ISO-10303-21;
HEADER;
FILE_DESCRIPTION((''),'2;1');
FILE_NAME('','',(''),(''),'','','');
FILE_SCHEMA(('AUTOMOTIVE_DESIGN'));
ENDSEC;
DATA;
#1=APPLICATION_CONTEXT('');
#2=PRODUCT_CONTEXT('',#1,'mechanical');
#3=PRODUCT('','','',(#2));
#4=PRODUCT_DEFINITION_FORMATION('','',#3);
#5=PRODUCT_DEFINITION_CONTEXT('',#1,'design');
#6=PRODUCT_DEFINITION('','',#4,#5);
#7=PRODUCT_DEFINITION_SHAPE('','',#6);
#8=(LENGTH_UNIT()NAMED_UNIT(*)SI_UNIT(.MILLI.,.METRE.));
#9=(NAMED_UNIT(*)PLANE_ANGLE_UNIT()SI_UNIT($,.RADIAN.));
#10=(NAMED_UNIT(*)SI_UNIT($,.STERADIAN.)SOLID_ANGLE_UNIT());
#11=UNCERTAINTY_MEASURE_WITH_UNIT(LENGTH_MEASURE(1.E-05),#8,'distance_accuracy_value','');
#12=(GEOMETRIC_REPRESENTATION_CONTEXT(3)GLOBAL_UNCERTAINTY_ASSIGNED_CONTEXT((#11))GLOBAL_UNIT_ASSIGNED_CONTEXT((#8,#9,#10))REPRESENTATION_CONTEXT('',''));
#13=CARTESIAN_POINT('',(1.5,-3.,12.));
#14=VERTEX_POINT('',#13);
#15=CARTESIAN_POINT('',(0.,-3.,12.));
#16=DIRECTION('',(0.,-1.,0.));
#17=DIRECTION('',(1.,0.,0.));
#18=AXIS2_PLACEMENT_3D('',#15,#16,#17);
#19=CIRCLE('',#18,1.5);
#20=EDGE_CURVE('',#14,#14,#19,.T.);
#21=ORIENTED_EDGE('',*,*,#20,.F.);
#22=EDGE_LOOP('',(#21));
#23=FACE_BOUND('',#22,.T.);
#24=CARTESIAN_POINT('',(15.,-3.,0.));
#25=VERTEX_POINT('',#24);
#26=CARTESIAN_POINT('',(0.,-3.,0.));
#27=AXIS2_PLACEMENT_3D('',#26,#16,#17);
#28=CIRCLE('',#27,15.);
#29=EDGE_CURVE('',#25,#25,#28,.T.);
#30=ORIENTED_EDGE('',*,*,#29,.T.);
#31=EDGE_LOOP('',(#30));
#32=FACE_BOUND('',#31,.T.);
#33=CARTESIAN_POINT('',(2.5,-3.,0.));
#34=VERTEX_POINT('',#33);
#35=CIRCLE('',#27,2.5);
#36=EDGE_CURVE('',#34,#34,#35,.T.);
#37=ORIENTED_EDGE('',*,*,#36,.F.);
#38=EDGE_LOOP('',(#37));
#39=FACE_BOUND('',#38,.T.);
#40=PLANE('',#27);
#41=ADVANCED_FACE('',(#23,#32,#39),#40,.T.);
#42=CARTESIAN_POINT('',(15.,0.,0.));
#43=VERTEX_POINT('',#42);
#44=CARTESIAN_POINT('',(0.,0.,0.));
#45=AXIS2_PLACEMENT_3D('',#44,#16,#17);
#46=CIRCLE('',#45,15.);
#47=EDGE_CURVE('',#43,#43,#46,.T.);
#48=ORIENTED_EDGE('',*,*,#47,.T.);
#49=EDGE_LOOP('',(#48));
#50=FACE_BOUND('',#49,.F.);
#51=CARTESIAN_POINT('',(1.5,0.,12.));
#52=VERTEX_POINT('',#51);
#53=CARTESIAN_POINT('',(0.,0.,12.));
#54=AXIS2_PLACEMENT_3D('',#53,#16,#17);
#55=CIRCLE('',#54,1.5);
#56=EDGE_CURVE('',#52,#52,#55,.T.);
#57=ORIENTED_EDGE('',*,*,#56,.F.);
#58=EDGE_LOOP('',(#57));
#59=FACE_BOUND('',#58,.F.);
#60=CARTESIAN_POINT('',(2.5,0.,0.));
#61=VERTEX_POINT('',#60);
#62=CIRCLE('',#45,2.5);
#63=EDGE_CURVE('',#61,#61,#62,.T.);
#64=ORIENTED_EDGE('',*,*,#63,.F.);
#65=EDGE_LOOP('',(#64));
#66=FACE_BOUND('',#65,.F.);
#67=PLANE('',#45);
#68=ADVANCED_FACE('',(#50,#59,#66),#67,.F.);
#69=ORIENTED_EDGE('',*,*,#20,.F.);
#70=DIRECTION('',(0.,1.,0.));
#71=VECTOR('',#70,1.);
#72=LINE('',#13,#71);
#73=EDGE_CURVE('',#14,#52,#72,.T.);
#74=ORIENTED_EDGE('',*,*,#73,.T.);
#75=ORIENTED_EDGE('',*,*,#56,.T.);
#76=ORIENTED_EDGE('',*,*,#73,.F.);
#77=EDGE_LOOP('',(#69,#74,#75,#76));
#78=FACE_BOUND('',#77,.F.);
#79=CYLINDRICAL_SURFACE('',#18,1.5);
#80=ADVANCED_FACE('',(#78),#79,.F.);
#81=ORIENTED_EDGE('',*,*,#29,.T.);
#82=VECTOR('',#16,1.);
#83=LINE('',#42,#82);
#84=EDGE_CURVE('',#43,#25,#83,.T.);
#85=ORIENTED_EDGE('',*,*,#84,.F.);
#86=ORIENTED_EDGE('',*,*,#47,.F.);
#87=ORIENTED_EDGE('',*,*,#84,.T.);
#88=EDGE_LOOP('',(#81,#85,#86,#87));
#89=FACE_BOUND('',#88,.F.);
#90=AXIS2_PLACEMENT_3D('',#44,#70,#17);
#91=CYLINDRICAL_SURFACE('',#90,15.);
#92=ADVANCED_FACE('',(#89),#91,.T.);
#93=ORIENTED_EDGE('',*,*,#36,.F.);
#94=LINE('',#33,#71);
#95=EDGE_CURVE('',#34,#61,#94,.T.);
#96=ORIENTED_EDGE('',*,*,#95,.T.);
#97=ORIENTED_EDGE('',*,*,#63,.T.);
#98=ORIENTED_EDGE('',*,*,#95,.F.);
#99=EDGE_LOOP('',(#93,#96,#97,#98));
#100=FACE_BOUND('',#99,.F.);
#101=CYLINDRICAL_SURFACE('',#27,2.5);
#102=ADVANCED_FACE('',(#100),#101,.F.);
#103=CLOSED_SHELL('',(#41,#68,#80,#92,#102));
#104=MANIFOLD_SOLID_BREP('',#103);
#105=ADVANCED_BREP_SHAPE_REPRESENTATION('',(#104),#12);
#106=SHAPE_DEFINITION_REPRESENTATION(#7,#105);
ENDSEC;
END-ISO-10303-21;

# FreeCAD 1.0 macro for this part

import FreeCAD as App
import Part
import Sketcher
from FreeCAD import Vector

doc = App.newDocument("Part")
body = doc.addObject("PartDesign::Body", "Body")

sketch1 = doc.addObject("Sketcher::SketchObject", "Sketch")
body.addObject(sketch1)
sketch1.AttachmentSupport = (doc.XZ_Plane, [""])
sketch1.MapMode = "FlatFace"
sketch1.addGeometry(Part.Circle(Vector(0, 0, 0), Vector(0, 0, 1), 15), False)
sketch1.addConstraint(Sketcher.Constraint("Coincident", 0, 3, -1, 1))
sketch1.addConstraint(Sketcher.Constraint("Diameter", 0, 30.0))
pad1 = doc.addObject("PartDesign::Pad", "Pad")
body.addObject(pad1)
pad1.Profile = sketch1
pad1.Length = 3

sketch2 = doc.addObject("Sketcher::SketchObject", "Sketch001")
body.addObject(sketch2)
sketch2.AttachmentSupport = (doc.XZ_Plane, [""])
sketch2.MapMode = "FlatFace"
sketch2.AttachmentOffset = App.Placement(Vector(0, 0, 3), App.Rotation())
sketch2.addGeometry(Part.Circle(Vector(0, 12, 0), Vector(0, 0, 1), 1.5), False)
sketch2.addConstraint(Sketcher.Constraint("PointOnObject", 0, 3, -2))
sketch2.addConstraint(Sketcher.Constraint("Diameter", 0, 3.0))
sketch2.addConstraint(Sketcher.Constraint("DistanceY", -1, 1, 0, 3, 12.0))
pocket1 = doc.addObject("PartDesign::Pocket", "Pocket")
body.addObject(pocket1)
pocket1.Profile = sketch2
pocket1.Type = "ThroughAll"

sketch3 = doc.addObject("Sketcher::SketchObject", "Sketch002")
body.addObject(sketch3)
sketch3.AttachmentSupport = (doc.XZ_Plane, [""])
sketch3.MapMode = "FlatFace"
sketch3.AttachmentOffset = App.Placement(Vector(0, 0, 3), App.Rotation())
sketch3.addGeometry(Part.Circle(Vector(0, 0, 0), Vector(0, 0, 1), 2.5), False)
sketch3.addConstraint(Sketcher.Constraint("Coincident", 0, 3, -1, 1))
sketch3.addConstraint(Sketcher.Constraint("Diameter", 0, 5.0))
pocket2 = doc.addObject("PartDesign::Pocket", "Pocket001")
body.addObject(pocket2)
pocket2.Profile = sketch3
pocket2.Type = "ThroughAll"

doc.recompute()
